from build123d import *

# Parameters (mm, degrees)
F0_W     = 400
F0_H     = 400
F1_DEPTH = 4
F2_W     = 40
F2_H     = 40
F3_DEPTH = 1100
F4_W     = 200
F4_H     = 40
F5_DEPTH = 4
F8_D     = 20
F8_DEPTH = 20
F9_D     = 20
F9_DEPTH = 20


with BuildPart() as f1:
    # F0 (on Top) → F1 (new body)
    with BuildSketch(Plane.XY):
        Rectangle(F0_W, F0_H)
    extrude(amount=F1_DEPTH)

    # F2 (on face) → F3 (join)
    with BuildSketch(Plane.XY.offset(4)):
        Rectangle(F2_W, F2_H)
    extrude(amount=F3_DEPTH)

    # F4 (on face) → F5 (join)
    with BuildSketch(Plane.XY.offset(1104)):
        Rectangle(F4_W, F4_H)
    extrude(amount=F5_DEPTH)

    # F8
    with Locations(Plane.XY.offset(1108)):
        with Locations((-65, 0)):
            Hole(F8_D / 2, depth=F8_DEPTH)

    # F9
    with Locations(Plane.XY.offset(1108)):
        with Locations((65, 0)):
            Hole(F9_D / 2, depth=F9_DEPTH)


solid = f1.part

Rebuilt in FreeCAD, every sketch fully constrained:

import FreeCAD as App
import Part
import Sketcher

V = App.Vector
Q = App.Units.Quantity

doc = App.newDocument("Part")
body = doc.addObject("PartDesign::Body", "Body")

sketch1 = body.newObject("Sketcher::SketchObject", "Sketch")
sketch1.AttachmentSupport = (doc.getObject("XY_Plane"), [""])
sketch1.MapMode = "FlatFace"
sketch1.addGeometry(Part.LineSegment(V(-200, 200, 0), V(-200, -200, 0)), False)
sketch1.addGeometry(Part.LineSegment(V(-200, -200, 0), V(200, -200, 0)), False)
sketch1.addGeometry(Part.LineSegment(V(200, -200, 0), V(200, 200, 0)), False)
sketch1.addGeometry(Part.LineSegment(V(200, 200, 0), V(-200, 200, 0)), False)
sketch1.addConstraint(Sketcher.Constraint("Coincident", 0, 2, 1, 1))
sketch1.addConstraint(Sketcher.Constraint("Coincident", 1, 2, 2, 1))
sketch1.addConstraint(Sketcher.Constraint("Coincident", 2, 2, 3, 1))
sketch1.addConstraint(Sketcher.Constraint("Coincident", 3, 2, 0, 1))
sketch1.addConstraint(Sketcher.Constraint("Vertical", 0))
sketch1.addConstraint(Sketcher.Constraint("Horizontal", 1))
sketch1.addConstraint(Sketcher.Constraint("Vertical", 2))
sketch1.addConstraint(Sketcher.Constraint("Horizontal", 3))
sketch1.addConstraint(Sketcher.Constraint("Symmetric", 0, 2, 2, 2, -1, 1))
sketch1.addConstraint(Sketcher.Constraint("Equal", 3, 0))
sketch1.addConstraint(Sketcher.Constraint("DistanceX", 1, 1, 1, 2, Q("400 mm")))
pad1 = body.newObject("PartDesign::Pad", "Pad")
pad1.Profile = sketch1
pad1.Length = 4

sketch2 = body.newObject("Sketcher::SketchObject", "Sketch001")
sketch2.AttachmentSupport = (doc.getObject("XY_Plane"), [""])
sketch2.MapMode = "FlatFace"
sketch2.AttachmentOffset = App.Placement(V(0, 0, 4), App.Rotation())
sketch2.addGeometry(Part.LineSegment(V(-20, 20, 0), V(-20, -20, 0)), False)
sketch2.addGeometry(Part.LineSegment(V(-20, -20, 0), V(20, -20, 0)), False)
sketch2.addGeometry(Part.LineSegment(V(20, -20, 0), V(20, 20, 0)), False)
sketch2.addGeometry(Part.LineSegment(V(20, 20, 0), V(-20, 20, 0)), False)
sketch2.addConstraint(Sketcher.Constraint("Coincident", 0, 2, 1, 1))
sketch2.addConstraint(Sketcher.Constraint("Coincident", 1, 2, 2, 1))
sketch2.addConstraint(Sketcher.Constraint("Coincident", 2, 2, 3, 1))
sketch2.addConstraint(Sketcher.Constraint("Coincident", 3, 2, 0, 1))
sketch2.addConstraint(Sketcher.Constraint("Vertical", 0))
sketch2.addConstraint(Sketcher.Constraint("Horizontal", 1))
sketch2.addConstraint(Sketcher.Constraint("Vertical", 2))
sketch2.addConstraint(Sketcher.Constraint("Horizontal", 3))
sketch2.addConstraint(Sketcher.Constraint("Symmetric", 0, 2, 2, 2, -1, 1))
sketch2.addConstraint(Sketcher.Constraint("Equal", 3, 0))
sketch2.addConstraint(Sketcher.Constraint("DistanceX", 1, 1, 1, 2, Q("40 mm")))
pad2 = body.newObject("PartDesign::Pad", "Pad001")
pad2.Profile = sketch2
pad2.Length = 1100

sketch3 = body.newObject("Sketcher::SketchObject", "Sketch002")
sketch3.AttachmentSupport = (doc.getObject("XY_Plane"), [""])
sketch3.MapMode = "FlatFace"
sketch3.AttachmentOffset = App.Placement(V(0, 0, 1104), App.Rotation())
sketch3.addGeometry(Part.LineSegment(V(-100, 20, 0), V(-100, -20, 0)), False)
sketch3.addGeometry(Part.LineSegment(V(-100, -20, 0), V(100, -20, 0)), False)
sketch3.addGeometry(Part.LineSegment(V(100, -20, 0), V(100, 20, 0)), False)
sketch3.addGeometry(Part.LineSegment(V(100, 20, 0), V(-100, 20, 0)), False)
sketch3.addConstraint(Sketcher.Constraint("Coincident", 0, 2, 1, 1))
sketch3.addConstraint(Sketcher.Constraint("Coincident", 1, 2, 2, 1))
sketch3.addConstraint(Sketcher.Constraint("Coincident", 2, 2, 3, 1))
sketch3.addConstraint(Sketcher.Constraint("Coincident", 3, 2, 0, 1))
sketch3.addConstraint(Sketcher.Constraint("Vertical", 0))
sketch3.addConstraint(Sketcher.Constraint("Horizontal", 1))
sketch3.addConstraint(Sketcher.Constraint("Vertical", 2))
sketch3.addConstraint(Sketcher.Constraint("Horizontal", 3))
sketch3.addConstraint(Sketcher.Constraint("Symmetric", 0, 2, 2, 2, -1, 1))
sketch3.addConstraint(Sketcher.Constraint("DistanceX", 1, 1, 1, 2, Q("200 mm")))
sketch3.addConstraint(Sketcher.Constraint("DistanceY", 0, 2, 0, 1, Q("40 mm")))
pad3 = body.newObject("PartDesign::Pad", "Pad002")
pad3.Profile = sketch3
pad3.Length = 4

sketch4 = body.newObject("Sketcher::SketchObject", "Sketch003")
sketch4.AttachmentSupport = (doc.getObject("XY_Plane"), [""])
sketch4.MapMode = "FlatFace"
sketch4.AttachmentOffset = App.Placement(V(0, 0, 1108), App.Rotation())
sketch4.addGeometry(Part.Circle(V(-65, 0, 0), V(0, 0, 1), 10), False)
sketch4.addConstraint(Sketcher.Constraint("PointOnObject", 0, 3, -1))
sketch4.addConstraint(Sketcher.Constraint("Diameter", 0, Q("20 mm")))
sketch4.addConstraint(Sketcher.Constraint("DistanceX", 0, 3, -1, 1, Q("65 mm")))
doc.recompute()
hole = body.newObject("PartDesign::Hole", "Hole")
hole.Profile = sketch4
hole.ThreadType = "None"
hole.Diameter = 20
hole.DepthType = "Dimension"
hole.Depth = 20
hole.DrillPoint = "Flat"

sketch5 = body.newObject("Sketcher::SketchObject", "Sketch004")
sketch5.AttachmentSupport = (doc.getObject("XY_Plane"), [""])
sketch5.MapMode = "FlatFace"
sketch5.AttachmentOffset = App.Placement(V(0, 0, 1108), App.Rotation())
sketch5.addGeometry(Part.Circle(V(65, 0, 0), V(0, 0, 1), 10), False)
sketch5.addConstraint(Sketcher.Constraint("PointOnObject", 0, 3, -1))
sketch5.addConstraint(Sketcher.Constraint("Diameter", 0, Q("20 mm")))
sketch5.addConstraint(Sketcher.Constraint("DistanceX", -1, 1, 0, 3, Q("65 mm")))
doc.recompute()
hole2 = body.newObject("PartDesign::Hole", "Hole001")
hole2.Profile = sketch5
hole2.ThreadType = "None"
hole2.Diameter = 20
hole2.DepthType = "Dimension"
hole2.Depth = 20
hole2.DrillPoint = "Flat"

doc.recompute()
